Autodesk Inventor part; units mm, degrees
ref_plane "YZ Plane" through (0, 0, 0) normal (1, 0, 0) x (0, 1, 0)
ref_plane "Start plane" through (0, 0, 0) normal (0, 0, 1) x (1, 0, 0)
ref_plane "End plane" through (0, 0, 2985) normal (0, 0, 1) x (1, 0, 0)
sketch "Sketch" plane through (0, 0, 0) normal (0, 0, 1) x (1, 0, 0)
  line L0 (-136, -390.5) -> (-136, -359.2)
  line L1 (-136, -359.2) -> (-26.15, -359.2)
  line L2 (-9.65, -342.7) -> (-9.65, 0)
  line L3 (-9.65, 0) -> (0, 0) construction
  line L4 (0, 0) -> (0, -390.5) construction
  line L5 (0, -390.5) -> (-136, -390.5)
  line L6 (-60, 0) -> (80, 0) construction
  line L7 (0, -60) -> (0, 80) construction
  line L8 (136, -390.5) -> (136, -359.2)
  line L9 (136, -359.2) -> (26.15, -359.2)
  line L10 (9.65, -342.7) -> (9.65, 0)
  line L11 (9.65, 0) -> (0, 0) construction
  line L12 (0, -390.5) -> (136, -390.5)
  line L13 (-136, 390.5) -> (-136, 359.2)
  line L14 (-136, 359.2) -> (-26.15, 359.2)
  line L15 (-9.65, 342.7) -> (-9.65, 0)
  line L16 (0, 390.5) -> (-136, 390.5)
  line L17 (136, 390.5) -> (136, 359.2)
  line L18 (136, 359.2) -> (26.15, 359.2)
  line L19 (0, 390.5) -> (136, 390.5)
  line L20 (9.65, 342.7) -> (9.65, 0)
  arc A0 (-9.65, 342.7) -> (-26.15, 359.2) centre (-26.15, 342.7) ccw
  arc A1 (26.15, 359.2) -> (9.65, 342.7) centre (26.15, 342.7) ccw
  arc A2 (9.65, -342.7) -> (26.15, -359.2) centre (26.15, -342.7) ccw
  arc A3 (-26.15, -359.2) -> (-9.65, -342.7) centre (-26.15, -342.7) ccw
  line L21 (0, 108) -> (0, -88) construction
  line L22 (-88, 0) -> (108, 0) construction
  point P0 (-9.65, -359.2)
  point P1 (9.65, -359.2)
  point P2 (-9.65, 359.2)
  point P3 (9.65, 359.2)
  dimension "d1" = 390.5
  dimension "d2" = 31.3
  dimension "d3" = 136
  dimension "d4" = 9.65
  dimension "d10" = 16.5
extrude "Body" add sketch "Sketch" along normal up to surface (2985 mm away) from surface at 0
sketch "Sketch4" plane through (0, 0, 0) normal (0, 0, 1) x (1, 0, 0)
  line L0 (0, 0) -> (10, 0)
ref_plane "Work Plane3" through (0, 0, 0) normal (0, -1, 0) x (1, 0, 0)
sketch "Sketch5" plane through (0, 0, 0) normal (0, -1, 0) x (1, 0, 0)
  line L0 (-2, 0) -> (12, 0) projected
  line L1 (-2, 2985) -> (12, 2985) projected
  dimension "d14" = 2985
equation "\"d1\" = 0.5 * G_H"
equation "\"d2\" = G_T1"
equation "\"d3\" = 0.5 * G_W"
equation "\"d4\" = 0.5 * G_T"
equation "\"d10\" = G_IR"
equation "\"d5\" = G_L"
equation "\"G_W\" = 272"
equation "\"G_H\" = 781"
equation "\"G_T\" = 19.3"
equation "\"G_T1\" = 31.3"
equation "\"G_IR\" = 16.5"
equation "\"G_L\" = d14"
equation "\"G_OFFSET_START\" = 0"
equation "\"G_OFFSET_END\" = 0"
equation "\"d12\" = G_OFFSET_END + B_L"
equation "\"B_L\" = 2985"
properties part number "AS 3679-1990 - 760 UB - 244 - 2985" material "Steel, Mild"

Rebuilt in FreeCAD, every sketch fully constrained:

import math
import FreeCAD as App
import Part
import Sketcher
from FreeCAD import Vector
Q = App.Units.Quantity

doc = App.newDocument("Part")
body = doc.addObject("PartDesign::Body", "Body")

# Sketch on XY plane
sketch1 = doc.addObject("Sketcher::SketchObject", "Sketch")
body.addObject(sketch1)
sketch1.AttachmentSupport = (doc.XY_Plane, [""])
sketch1.MapMode = "FlatFace"
sketch1.addGeometry([
    Part.LineSegment(Vector(-136, -359, 0), Vector(-136, -390, 0)),  # 0
    Part.LineSegment(Vector(-136, -390, 0), Vector(136, -390, 0)),  # 1
    Part.LineSegment(Vector(136, -390, 0), Vector(136, -359, 0)),  # 2
    Part.LineSegment(Vector(136, -359, 0), Vector(26, -359, 0)),  # 3
    Part.ArcOfCircle(Part.Circle(Vector(26, -343, 0), Vector(0, 0, 1), 16), math.radians(180), math.radians(270)),  # 4
    Part.LineSegment(Vector(10, -343, 0), Vector(10, 343, 0)),  # 5
    Part.ArcOfCircle(Part.Circle(Vector(26, 343, 0), Vector(0, 0, 1), 16), math.radians(90), math.radians(180)),  # 6
    Part.LineSegment(Vector(26, 359, 0), Vector(136, 359, 0)),  # 7
    Part.LineSegment(Vector(136, 359, 0), Vector(136, 390, 0)),  # 8
    Part.LineSegment(Vector(136, 390, 0), Vector(-136, 390, 0)),  # 9
    Part.LineSegment(Vector(-136, 390, 0), Vector(-136, 359, 0)),  # 10
    Part.LineSegment(Vector(-136, 359, 0), Vector(-26, 359, 0)),  # 11
    Part.ArcOfCircle(Part.Circle(Vector(-26, 343, 0), Vector(0, 0, 1), 16), math.radians(0), math.radians(90)),  # 12
    Part.LineSegment(Vector(-10, 343, 0), Vector(-10, -343, 0)),  # 13
    Part.ArcOfCircle(Part.Circle(Vector(-26, -343, 0), Vector(0, 0, 1), 16), math.radians(-90), math.radians(0)),  # 14
    Part.LineSegment(Vector(-26, -359, 0), Vector(-136, -359, 0)),  # 15
], False)
sketch1.addConstraint([
    Sketcher.Constraint("Coincident", 0, 2, 1, 1),
    Sketcher.Constraint("Coincident", 1, 2, 2, 1),
    Sketcher.Constraint("Coincident", 2, 2, 3, 1),
    Sketcher.Constraint("Tangent", 3, 2, 4, 2),
    Sketcher.Constraint("Tangent", 4, 1, 5, 1),
    Sketcher.Constraint("Tangent", 5, 2, 6, 2),
    Sketcher.Constraint("Tangent", 6, 1, 7, 1),
    Sketcher.Constraint("Coincident", 7, 2, 8, 1),
    Sketcher.Constraint("Coincident", 8, 2, 9, 1),
    Sketcher.Constraint("Coincident", 9, 2, 10, 1),
    Sketcher.Constraint("Coincident", 10, 2, 11, 1),
    Sketcher.Constraint("Tangent", 11, 2, 12, 2),
    Sketcher.Constraint("Tangent", 12, 1, 13, 1),
    Sketcher.Constraint("Tangent", 13, 2, 14, 2),
    Sketcher.Constraint("Tangent", 14, 1, 15, 1),
    Sketcher.Constraint("Coincident", 15, 2, 0, 1),
    Sketcher.Constraint("Vertical", 0),
    Sketcher.Constraint("Horizontal", 1),
    Sketcher.Constraint("Vertical", 2),
    Sketcher.Constraint("Horizontal", 3),
    Sketcher.Constraint("Vertical", 5),
    Sketcher.Constraint("Horizontal", 7),
    Sketcher.Constraint("Vertical", 8),
    Sketcher.Constraint("Horizontal", 9),
    Sketcher.Constraint("Vertical", 10),
    Sketcher.Constraint("Horizontal", 11),
    Sketcher.Constraint("Vertical", 13),
    Sketcher.Constraint("Horizontal", 15),
    Sketcher.Constraint("Equal", 4, 6),
    Sketcher.Constraint("Equal", 6, 12),
    Sketcher.Constraint("Equal", 12, 14),
    Sketcher.Constraint("Symmetric", 4, 3, 12, 3, -1, 1),
    Sketcher.Constraint("Symmetric", 0, 2, 8, 2, -1, 1),
    Sketcher.Constraint("Symmetric", 7, 2, 10, 2, -2),
    Sketcher.Constraint("Symmetric", 2, 2, 15, 2, -2),
    Sketcher.Constraint("Radius", 4, Q("16.5 mm")),
    Sketcher.Constraint("DistanceY", 0, 2, 0, 1, Q("31.3 mm")),
    Sketcher.Constraint("DistanceX", 0, 2, -1, 1, Q("136 mm")),
    Sketcher.Constraint("DistanceY", 0, 2, -1, 1, Q("390.5 mm")),
    Sketcher.Constraint("DistanceX", -1, 1, 4, 1, Q("9.65 mm")),
])
pad1 = doc.addObject("PartDesign::Pad", "Pad")
body.addObject(pad1)
pad1.Profile = sketch1
pad1.Length = 2985

doc.recompute()
